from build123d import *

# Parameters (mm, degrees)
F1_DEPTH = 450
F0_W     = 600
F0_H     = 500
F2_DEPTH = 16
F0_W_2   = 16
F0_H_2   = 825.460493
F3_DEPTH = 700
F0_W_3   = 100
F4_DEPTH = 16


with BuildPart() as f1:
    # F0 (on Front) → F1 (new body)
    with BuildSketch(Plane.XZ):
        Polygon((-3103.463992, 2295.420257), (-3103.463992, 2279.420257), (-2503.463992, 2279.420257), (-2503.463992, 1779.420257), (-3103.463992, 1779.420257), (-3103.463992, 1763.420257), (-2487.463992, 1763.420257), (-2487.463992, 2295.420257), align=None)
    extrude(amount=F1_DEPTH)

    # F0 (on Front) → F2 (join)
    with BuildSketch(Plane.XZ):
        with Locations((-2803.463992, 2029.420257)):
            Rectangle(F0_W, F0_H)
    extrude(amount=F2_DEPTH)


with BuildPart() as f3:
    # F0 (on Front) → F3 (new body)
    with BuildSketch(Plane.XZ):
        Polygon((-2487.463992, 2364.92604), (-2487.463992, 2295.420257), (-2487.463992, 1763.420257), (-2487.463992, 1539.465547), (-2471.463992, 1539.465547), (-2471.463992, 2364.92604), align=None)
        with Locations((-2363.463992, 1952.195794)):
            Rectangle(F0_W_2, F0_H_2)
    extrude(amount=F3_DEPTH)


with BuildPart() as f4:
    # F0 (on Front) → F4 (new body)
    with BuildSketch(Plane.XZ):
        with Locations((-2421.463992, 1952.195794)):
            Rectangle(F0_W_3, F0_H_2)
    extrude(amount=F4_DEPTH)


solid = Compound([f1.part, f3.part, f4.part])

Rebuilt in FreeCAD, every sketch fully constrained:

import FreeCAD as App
import Part
import Sketcher

V = App.Vector

doc = App.newDocument("Part")
params = doc.addObject("Spreadsheet::Sheet", "Params")
for row, (alias, value) in enumerate([
    ("sketch1_width", "600 mm"),
    ("sketch1_width2", "616 mm"),
    ("sketch1_height", "16 mm"),
    ("sketch1_height2", "500 mm"),
    ("pad1_length", "450 mm"),
    ("sketch2_width", "600 mm"),
    ("sketch2_height", "500 mm"),
    ("pad2_length", "16 mm"),
    ("sketch3_width", "16 mm"),
    ("pad3_length", "700 mm"),
    ("sketch4_width", "100 mm"),
    ("pad4_length", "16 mm"),
], start=1):
    params.set(f"A{row}", alias)
    params.set(f"B{row}", "=" + value)
    params.setAlias(f"B{row}", alias)

body = doc.addObject("PartDesign::Body", "Body")

# Sketch on XZ plane
sketch1 = body.newObject("Sketcher::SketchObject", "Sketch")
sketch1.AttachmentSupport = (doc.getObject("XZ_Plane"), [""])
sketch1.MapMode = "FlatFace"
sketch1.addGeometry([
    Part.LineSegment(V(-3103.463992, 2295.420257, 0), V(-3103.463992, 2279.420257, 0)),  # 0
    Part.LineSegment(V(-3103.463992, 2279.420257, 0), V(-2503.463992, 2279.420257, 0)),  # 1
    Part.LineSegment(V(-2503.463992, 2279.420257, 0), V(-2503.463992, 1779.420257, 0)),  # 2
    Part.LineSegment(V(-2503.463992, 1779.420257, 0), V(-3103.463992, 1779.420257, 0)),  # 3
    Part.LineSegment(V(-3103.463992, 1779.420257, 0), V(-3103.463992, 1763.420257, 0)),  # 4
    Part.LineSegment(V(-3103.463992, 1763.420257, 0), V(-2487.463992, 1763.420257, 0)),  # 5
    Part.LineSegment(V(-2487.463992, 1763.420257, 0), V(-2487.463992, 2295.420257, 0)),  # 6
    Part.LineSegment(V(-2487.463992, 2295.420257, 0), V(-3103.463992, 2295.420257, 0)),  # 7
], False)
sketch1.addConstraint([
    Sketcher.Constraint("Coincident", 0, 2, 1, 1),
    Sketcher.Constraint("Coincident", 1, 2, 2, 1),
    Sketcher.Constraint("Coincident", 2, 2, 3, 1),
    Sketcher.Constraint("Coincident", 3, 2, 4, 1),
    Sketcher.Constraint("Coincident", 4, 2, 5, 1),
    Sketcher.Constraint("Coincident", 5, 2, 6, 1),
    Sketcher.Constraint("Coincident", 6, 2, 7, 1),
    Sketcher.Constraint("Coincident", 7, 2, 0, 1),
    Sketcher.Constraint("Vertical", 0),
    Sketcher.Constraint("Horizontal", 1),
    Sketcher.Constraint("Vertical", 2),
    Sketcher.Constraint("Horizontal", 3),
    Sketcher.Constraint("Vertical", 4),
    Sketcher.Constraint("Horizontal", 5),
    Sketcher.Constraint("Vertical", 6),
    Sketcher.Constraint("Horizontal", 7),
    Sketcher.Constraint("Vertical", 0, 2, 3, 2),
    Sketcher.Constraint("Equal", 0, 4),
    Sketcher.Constraint("DistanceX", 1, 1, 1, 2, 600.0),
    Sketcher.Constraint("DistanceX", 5, 1, 5, 2, 616.0),
    Sketcher.Constraint("DistanceY", 0, 2, 0, 1, 16.0),
    Sketcher.Constraint("DistanceY", 2, 2, 2, 1, 500.0),
    Sketcher.Constraint("DistanceX", 0, 2, -1, 1, 3103.463992),
    Sketcher.Constraint("DistanceY", -1, 1, 0, 2, 2279.420257),
])
sketch1.setExpression("Constraints[18]", "Params.sketch1_width")
sketch1.setExpression("Constraints[19]", "Params.sketch1_width2")
sketch1.setExpression("Constraints[20]", "Params.sketch1_height")
sketch1.setExpression("Constraints[21]", "Params.sketch1_height2")
pad1 = body.newObject("PartDesign::Pad", "Pad")
pad1.Profile = sketch1
pad1.setExpression("Length", "Params.pad1_length")

# Sketch on XZ plane
sketch2 = body.newObject("Sketcher::SketchObject", "Sketch001")
sketch2.AttachmentSupport = (doc.getObject("XZ_Plane"), [""])
sketch2.MapMode = "FlatFace"
sketch2.addGeometry([
    Part.LineSegment(V(-3103.463992, 2279.420257, 0), V(-3103.463992, 1779.420257, 0)),
    Part.LineSegment(V(-3103.463992, 1779.420257, 0), V(-2503.463992, 1779.420257, 0)),
    Part.LineSegment(V(-2503.463992, 1779.420257, 0), V(-2503.463992, 2279.420257, 0)),
    Part.LineSegment(V(-2503.463992, 2279.420257, 0), V(-3103.463992, 2279.420257, 0)),
], False)
sketch2.addConstraint([
    Sketcher.Constraint("Coincident", 0, 2, 1, 1),
    Sketcher.Constraint("Coincident", 1, 2, 2, 1),
    Sketcher.Constraint("Coincident", 2, 2, 3, 1),
    Sketcher.Constraint("Coincident", 3, 2, 0, 1),
    Sketcher.Constraint("Vertical", 0),
    Sketcher.Constraint("Horizontal", 1),
    Sketcher.Constraint("Vertical", 2),
    Sketcher.Constraint("Horizontal", 3),
    Sketcher.Constraint("DistanceX", 1, 1, 1, 2, 600.0),
    Sketcher.Constraint("DistanceY", 0, 2, 0, 1, 500.0),
    Sketcher.Constraint("DistanceX", 0, 2, -1, 1, 3103.463992),
    Sketcher.Constraint("DistanceY", -1, 1, 0, 2, 1779.420257),
])
sketch2.setExpression("Constraints[8]", "Params.sketch2_width")
sketch2.setExpression("Constraints[9]", "Params.sketch2_height")
pad2 = body.newObject("PartDesign::Pad", "Pad001")
pad2.Profile = sketch2
pad2.setExpression("Length", "Params.pad2_length")
body2 = doc.addObject("PartDesign::Body", "Body001")
body2.AllowCompound = True

# Sketch on XZ plane
sketch3 = body2.newObject("Sketcher::SketchObject", "Sketch002")
sketch3.AttachmentSupport = (doc.getObject("XZ_Plane001"), [""])
sketch3.MapMode = "FlatFace"
sketch3.addGeometry([
    Part.LineSegment(V(-2487.463992, 2364.92604, 0), V(-2487.463992, 1539.465547, 0)),  # 0
    Part.LineSegment(V(-2487.463992, 1539.465547, 0), V(-2471.463992, 1539.465547, 0)),  # 1
    Part.LineSegment(V(-2471.463992, 1539.465547, 0), V(-2471.463992, 2364.92604, 0)),  # 2
    Part.LineSegment(V(-2471.463992, 2364.92604, 0), V(-2487.463992, 2364.92604, 0)),  # 3
    Part.LineSegment(V(-2371.463992, 2364.92604, 0), V(-2371.463992, 1539.465547, 0)),  # 4
    Part.LineSegment(V(-2371.463992, 1539.465547, 0), V(-2355.463992, 1539.465547, 0)),  # 5
    Part.LineSegment(V(-2355.463992, 1539.465547, 0), V(-2355.463992, 2364.92604, 0)),  # 6
    Part.LineSegment(V(-2355.463992, 2364.92604, 0), V(-2371.463992, 2364.92604, 0)),  # 7
], False)
sketch3.addConstraint([
    Sketcher.Constraint("Coincident", 0, 2, 1, 1),
    Sketcher.Constraint("Coincident", 1, 2, 2, 1),
    Sketcher.Constraint("Coincident", 2, 2, 3, 1),
    Sketcher.Constraint("Coincident", 3, 2, 0, 1),
    Sketcher.Constraint("Coincident", 4, 2, 5, 1),
    Sketcher.Constraint("Coincident", 5, 2, 6, 1),
    Sketcher.Constraint("Coincident", 6, 2, 7, 1),
    Sketcher.Constraint("Coincident", 7, 2, 4, 1),
    Sketcher.Constraint("Vertical", 0),
    Sketcher.Constraint("Horizontal", 1),
    Sketcher.Constraint("Vertical", 2),
    Sketcher.Constraint("Horizontal", 3),
    Sketcher.Constraint("Vertical", 4),
    Sketcher.Constraint("Horizontal", 5),
    Sketcher.Constraint("Vertical", 6),
    Sketcher.Constraint("Horizontal", 7),
    Sketcher.Constraint("Horizontal", 1, 2, 4, 2),
    Sketcher.Constraint("Horizontal", 3, 2, 6, 2),
    Sketcher.Constraint("Equal", 3, 5),
    Sketcher.Constraint("DistanceX", 1, 1, 1, 2, 16.0),
    Sketcher.Constraint("DistanceX", 1, 2, 4, 2, 100.0),
    Sketcher.Constraint("DistanceY", 0, 2, 0, 1, 825.460493),
    Sketcher.Constraint("DistanceX", 0, 2, -1, 1, 2487.463992),
    Sketcher.Constraint("DistanceY", -1, 1, 2, 2, 2364.92604),
])
sketch3.setExpression("Constraints[19]", "Params.sketch3_width")
pad3 = body2.newObject("PartDesign::Pad", "Pad002")
pad3.Profile = sketch3
pad3.setExpression("Length", "Params.pad3_length")
body3 = doc.addObject("PartDesign::Body", "Body002")

# Sketch on XZ plane
sketch4 = body3.newObject("Sketcher::SketchObject", "Sketch003")
sketch4.AttachmentSupport = (doc.getObject("XZ_Plane002"), [""])
sketch4.MapMode = "FlatFace"
sketch4.addGeometry([
    Part.LineSegment(V(-2471.463992, 2364.92604, 0), V(-2471.463992, 1539.465547, 0)),
    Part.LineSegment(V(-2471.463992, 1539.465547, 0), V(-2371.463992, 1539.465547, 0)),
    Part.LineSegment(V(-2371.463992, 1539.465547, 0), V(-2371.463992, 2364.92604, 0)),
    Part.LineSegment(V(-2371.463992, 2364.92604, 0), V(-2471.463992, 2364.92604, 0)),
], False)
sketch4.addConstraint([
    Sketcher.Constraint("Coincident", 0, 2, 1, 1),
    Sketcher.Constraint("Coincident", 1, 2, 2, 1),
    Sketcher.Constraint("Coincident", 2, 2, 3, 1),
    Sketcher.Constraint("Coincident", 3, 2, 0, 1),
    Sketcher.Constraint("Vertical", 0),
    Sketcher.Constraint("Horizontal", 1),
    Sketcher.Constraint("Vertical", 2),
    Sketcher.Constraint("Horizontal", 3),
    Sketcher.Constraint("DistanceX", 1, 1, 1, 2, 100.0),
    Sketcher.Constraint("DistanceY", 0, 2, 0, 1, 825.460493),
    Sketcher.Constraint("DistanceX", 0, 2, -1, 1, 2471.463992),
    Sketcher.Constraint("DistanceY", -1, 1, 2, 2, 2364.92604),
])
sketch4.setExpression("Constraints[8]", "Params.sketch4_width")
pad4 = body3.newObject("PartDesign::Pad", "Pad003")
pad4.Profile = sketch4
pad4.setExpression("Length", "Params.pad4_length")

doc.recompute()
